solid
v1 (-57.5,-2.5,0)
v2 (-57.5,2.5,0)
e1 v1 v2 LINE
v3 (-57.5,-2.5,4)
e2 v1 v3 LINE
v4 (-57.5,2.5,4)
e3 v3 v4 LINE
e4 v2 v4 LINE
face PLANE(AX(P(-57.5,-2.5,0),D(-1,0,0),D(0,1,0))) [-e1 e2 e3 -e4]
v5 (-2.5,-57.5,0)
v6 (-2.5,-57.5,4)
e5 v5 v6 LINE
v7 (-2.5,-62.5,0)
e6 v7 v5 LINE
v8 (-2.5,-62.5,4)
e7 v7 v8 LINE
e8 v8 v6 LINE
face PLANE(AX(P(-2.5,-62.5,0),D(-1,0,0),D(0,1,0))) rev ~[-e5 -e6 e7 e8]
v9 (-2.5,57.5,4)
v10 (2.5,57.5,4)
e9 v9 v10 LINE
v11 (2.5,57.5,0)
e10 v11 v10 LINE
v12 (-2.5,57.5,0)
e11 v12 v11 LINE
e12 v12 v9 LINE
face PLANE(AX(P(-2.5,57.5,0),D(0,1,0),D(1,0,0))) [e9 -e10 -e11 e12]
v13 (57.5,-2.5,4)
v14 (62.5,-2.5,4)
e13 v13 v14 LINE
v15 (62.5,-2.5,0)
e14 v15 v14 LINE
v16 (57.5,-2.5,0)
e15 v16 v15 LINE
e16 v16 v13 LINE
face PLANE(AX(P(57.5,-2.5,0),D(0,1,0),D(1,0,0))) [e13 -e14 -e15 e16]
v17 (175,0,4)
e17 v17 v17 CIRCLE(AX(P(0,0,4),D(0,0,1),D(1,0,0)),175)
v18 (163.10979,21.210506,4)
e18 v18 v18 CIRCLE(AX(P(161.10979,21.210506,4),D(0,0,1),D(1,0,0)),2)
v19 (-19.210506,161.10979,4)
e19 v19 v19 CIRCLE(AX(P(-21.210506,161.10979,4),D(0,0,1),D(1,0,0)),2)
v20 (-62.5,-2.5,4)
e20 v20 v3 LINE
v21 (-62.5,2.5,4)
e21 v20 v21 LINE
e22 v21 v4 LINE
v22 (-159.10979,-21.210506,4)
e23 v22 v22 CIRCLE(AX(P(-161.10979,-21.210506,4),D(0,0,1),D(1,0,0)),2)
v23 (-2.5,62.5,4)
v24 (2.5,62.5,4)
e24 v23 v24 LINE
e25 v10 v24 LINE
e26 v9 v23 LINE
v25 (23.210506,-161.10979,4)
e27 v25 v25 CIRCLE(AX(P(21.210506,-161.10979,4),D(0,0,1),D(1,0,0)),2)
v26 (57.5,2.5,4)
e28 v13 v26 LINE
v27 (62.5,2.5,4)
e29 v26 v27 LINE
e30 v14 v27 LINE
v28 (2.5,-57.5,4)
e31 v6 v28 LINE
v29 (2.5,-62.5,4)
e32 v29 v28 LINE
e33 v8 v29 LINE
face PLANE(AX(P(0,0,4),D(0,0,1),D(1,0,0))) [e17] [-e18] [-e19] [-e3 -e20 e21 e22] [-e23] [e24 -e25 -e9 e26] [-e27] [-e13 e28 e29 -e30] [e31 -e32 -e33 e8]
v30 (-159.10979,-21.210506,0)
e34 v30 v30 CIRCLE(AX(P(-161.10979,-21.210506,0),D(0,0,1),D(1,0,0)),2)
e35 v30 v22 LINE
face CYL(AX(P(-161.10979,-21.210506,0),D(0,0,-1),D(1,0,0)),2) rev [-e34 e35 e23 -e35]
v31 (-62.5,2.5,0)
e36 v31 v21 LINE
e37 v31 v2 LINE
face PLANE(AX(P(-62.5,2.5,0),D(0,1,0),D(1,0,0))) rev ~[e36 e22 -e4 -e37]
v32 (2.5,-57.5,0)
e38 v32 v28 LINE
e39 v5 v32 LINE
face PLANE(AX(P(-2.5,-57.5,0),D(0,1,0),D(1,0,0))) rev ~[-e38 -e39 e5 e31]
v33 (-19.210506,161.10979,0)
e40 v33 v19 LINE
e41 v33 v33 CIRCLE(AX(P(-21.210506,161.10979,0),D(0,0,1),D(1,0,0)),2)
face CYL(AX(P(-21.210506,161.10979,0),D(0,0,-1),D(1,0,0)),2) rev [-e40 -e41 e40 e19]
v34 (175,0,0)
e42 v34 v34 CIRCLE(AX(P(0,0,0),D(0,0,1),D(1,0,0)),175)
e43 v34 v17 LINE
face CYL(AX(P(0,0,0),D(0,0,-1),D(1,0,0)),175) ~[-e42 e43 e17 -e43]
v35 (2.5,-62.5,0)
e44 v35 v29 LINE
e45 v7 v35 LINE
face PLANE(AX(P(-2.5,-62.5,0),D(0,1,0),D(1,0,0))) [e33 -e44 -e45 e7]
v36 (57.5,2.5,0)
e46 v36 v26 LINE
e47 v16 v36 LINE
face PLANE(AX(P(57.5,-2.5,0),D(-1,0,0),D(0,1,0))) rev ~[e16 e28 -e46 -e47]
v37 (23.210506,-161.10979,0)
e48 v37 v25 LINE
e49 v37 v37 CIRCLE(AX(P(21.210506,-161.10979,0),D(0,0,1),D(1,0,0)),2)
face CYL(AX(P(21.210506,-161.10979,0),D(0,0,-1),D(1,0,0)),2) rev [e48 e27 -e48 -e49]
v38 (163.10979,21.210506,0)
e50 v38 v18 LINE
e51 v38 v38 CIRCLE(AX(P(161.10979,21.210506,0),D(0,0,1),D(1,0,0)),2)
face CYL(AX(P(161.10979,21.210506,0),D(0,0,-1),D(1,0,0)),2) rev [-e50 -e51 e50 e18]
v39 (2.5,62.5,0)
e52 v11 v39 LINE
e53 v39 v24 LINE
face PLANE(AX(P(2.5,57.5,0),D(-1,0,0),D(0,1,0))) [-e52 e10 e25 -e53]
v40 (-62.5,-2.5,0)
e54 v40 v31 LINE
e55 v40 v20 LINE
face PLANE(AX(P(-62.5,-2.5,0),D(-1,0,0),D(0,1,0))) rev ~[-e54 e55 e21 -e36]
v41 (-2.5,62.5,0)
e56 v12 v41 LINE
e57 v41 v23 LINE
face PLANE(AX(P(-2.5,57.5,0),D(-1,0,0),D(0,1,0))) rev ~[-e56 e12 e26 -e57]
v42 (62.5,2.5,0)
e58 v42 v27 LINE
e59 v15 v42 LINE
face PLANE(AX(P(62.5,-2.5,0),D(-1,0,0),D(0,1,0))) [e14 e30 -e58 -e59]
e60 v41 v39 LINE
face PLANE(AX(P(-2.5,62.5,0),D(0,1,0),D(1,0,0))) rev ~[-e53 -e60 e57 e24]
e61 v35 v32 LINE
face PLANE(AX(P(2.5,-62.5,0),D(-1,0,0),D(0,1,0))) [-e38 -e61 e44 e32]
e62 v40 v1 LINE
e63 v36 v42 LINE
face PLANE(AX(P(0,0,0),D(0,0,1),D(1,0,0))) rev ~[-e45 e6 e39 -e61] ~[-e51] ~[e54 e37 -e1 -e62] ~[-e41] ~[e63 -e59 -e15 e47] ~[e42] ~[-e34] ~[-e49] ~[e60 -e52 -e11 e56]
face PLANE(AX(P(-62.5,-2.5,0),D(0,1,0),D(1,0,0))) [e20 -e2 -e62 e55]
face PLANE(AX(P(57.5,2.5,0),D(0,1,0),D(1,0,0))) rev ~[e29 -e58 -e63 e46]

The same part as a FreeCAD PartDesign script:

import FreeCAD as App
import Part
import Sketcher
from FreeCAD import Vector

doc = App.newDocument("Part")
body = doc.addObject("PartDesign::Body", "Body")

# Sketch on XY plane
sketch1 = body.newObject("Sketcher::SketchObject", "Sketch")
sketch1.AttachmentSupport = (doc.getObject("XY_Plane"), [""])
sketch1.MapMode = "FlatFace"
sketch1.addGeometry([
    Part.Circle(Vector(0, 0, 0), Vector(0, 0, 1), 175),  # 0
    Part.Circle(Vector(-161.1, -21.2, 0), Vector(0, 0, 1), 2),  # 1
    Part.Circle(Vector(21.2, -161.1, 0), Vector(0, 0, 1), 2),  # 2
    Part.LineSegment(Vector(2.5, -62.5, 0), Vector(-2.5, -62.5, 0)),  # 3
    Part.LineSegment(Vector(-2.5, -62.5, 0), Vector(-2.5, -57.5, 0)),  # 4
    Part.LineSegment(Vector(-2.5, -57.5, 0), Vector(2.5, -57.5, 0)),  # 5
    Part.LineSegment(Vector(2.5, -57.5, 0), Vector(2.5, -62.5, 0)),  # 6
    Part.LineSegment(Vector(-57.5, -2.5, 0), Vector(-62.5, -2.5, 0)),  # 7
    Part.LineSegment(Vector(-62.5, -2.5, 0), Vector(-62.5, 2.5, 0)),  # 8
    Part.LineSegment(Vector(-62.5, 2.5, 0), Vector(-57.5, 2.5, 0)),  # 9
    Part.LineSegment(Vector(-57.5, 2.5, 0), Vector(-57.5, -2.5, 0)),  # 10
    Part.Circle(Vector(-21.2, 161.1, 0), Vector(0, 0, 1), 2),  # 11
    Part.LineSegment(Vector(62.5, -2.5, 0), Vector(57.5, -2.5, 0)),  # 12
    Part.LineSegment(Vector(57.5, -2.5, 0), Vector(57.5, 2.5, 0)),  # 13
    Part.LineSegment(Vector(57.5, 2.5, 0), Vector(62.5, 2.5, 0)),  # 14
    Part.LineSegment(Vector(62.5, 2.5, 0), Vector(62.5, -2.5, 0)),  # 15
    Part.LineSegment(Vector(2.5, 57.5, 0), Vector(-2.5, 57.5, 0)),  # 16
    Part.LineSegment(Vector(-2.5, 57.5, 0), Vector(-2.5, 62.5, 0)),  # 17
    Part.LineSegment(Vector(-2.5, 62.5, 0), Vector(2.5, 62.5, 0)),  # 18
    Part.LineSegment(Vector(2.5, 62.5, 0), Vector(2.5, 57.5, 0)),  # 19
    Part.Circle(Vector(161.1, 21.2, 0), Vector(0, 0, 1), 2),  # 20
], False)
sketch1.addConstraint([
    Sketcher.Constraint("Coincident", 3, 2, 4, 1),
    Sketcher.Constraint("Coincident", 4, 2, 5, 1),
    Sketcher.Constraint("Coincident", 5, 2, 6, 1),
    Sketcher.Constraint("Coincident", 6, 2, 3, 1),
    Sketcher.Constraint("Coincident", 7, 2, 8, 1),
    Sketcher.Constraint("Coincident", 8, 2, 9, 1),
    Sketcher.Constraint("Coincident", 9, 2, 10, 1),
    Sketcher.Constraint("Coincident", 10, 2, 7, 1),
    Sketcher.Constraint("Coincident", 12, 2, 13, 1),
    Sketcher.Constraint("Coincident", 13, 2, 14, 1),
    Sketcher.Constraint("Coincident", 14, 2, 15, 1),
    Sketcher.Constraint("Coincident", 15, 2, 12, 1),
    Sketcher.Constraint("Coincident", 16, 2, 17, 1),
    Sketcher.Constraint("Coincident", 17, 2, 18, 1),
    Sketcher.Constraint("Coincident", 18, 2, 19, 1),
    Sketcher.Constraint("Coincident", 19, 2, 16, 1),
    Sketcher.Constraint("Horizontal", 3),
    Sketcher.Constraint("Vertical", 4),
    Sketcher.Constraint("Horizontal", 5),
    Sketcher.Constraint("Vertical", 6),
    Sketcher.Constraint("Horizontal", 7),
    Sketcher.Constraint("Vertical", 8),
    Sketcher.Constraint("Horizontal", 9),
    Sketcher.Constraint("Vertical", 10),
    Sketcher.Constraint("Horizontal", 12),
    Sketcher.Constraint("Vertical", 13),
    Sketcher.Constraint("Horizontal", 14),
    Sketcher.Constraint("Vertical", 15),
    Sketcher.Constraint("Horizontal", 16),
    Sketcher.Constraint("Vertical", 17),
    Sketcher.Constraint("Horizontal", 18),
    Sketcher.Constraint("Vertical", 19),
    Sketcher.Constraint("Coincident", 0, 3, -1, 1),
    Sketcher.Constraint("Equal", 1, 2),
    Sketcher.Constraint("Equal", 2, 11),
    Sketcher.Constraint("Equal", 11, 20),
    Sketcher.Constraint("Symmetric", 2, 3, 11, 3, -1, 1),
    Sketcher.Constraint("Symmetric", 1, 3, 20, 3, -1, 1),
    Sketcher.Constraint("Symmetric", 9, 2, 12, 2, -1, 1),
    Sketcher.Constraint("Symmetric", 7, 2, 14, 2, -1, 1),
    Sketcher.Constraint("Symmetric", 5, 2, 16, 2, -1, 1),
    Sketcher.Constraint("Symmetric", 3, 2, 18, 2, -1, 1),
    Sketcher.Constraint("Horizontal", 10, 2, 12, 2),
    Sketcher.Constraint("Vertical", 4, 2, 16, 2),
    Sketcher.Constraint("Equal", 5, 7),
    Sketcher.Constraint("Equal", 18, 4),
    Sketcher.Constraint("Equal", 6, 8),
    Sketcher.Constraint("Diameter", 0, 350.0),
    Sketcher.Constraint("Diameter", 1, 4.0),
    Sketcher.Constraint("DistanceX", 3, 2, 3, 1, 5.0),
    Sketcher.Constraint("DistanceX", 7, 2, 4, 2, 60.0),
    Sketcher.Constraint("DistanceY", 4, 2, 7, 2, 55.0),
    Sketcher.Constraint("DistanceX", 1, 3, -1, 1, 161.10979),
    Sketcher.Constraint("DistanceY", 2, 3, -1, 1, 161.10979),
    Sketcher.Constraint("DistanceX", 11, 3, 2, 3, 42.421012),
    Sketcher.Constraint("DistanceY", 1, 3, 20, 3, 42.421012),
])
pad1 = body.newObject("PartDesign::Pad", "Pad")
pad1.Profile = sketch1
pad1.Length = 4

doc.recompute()
